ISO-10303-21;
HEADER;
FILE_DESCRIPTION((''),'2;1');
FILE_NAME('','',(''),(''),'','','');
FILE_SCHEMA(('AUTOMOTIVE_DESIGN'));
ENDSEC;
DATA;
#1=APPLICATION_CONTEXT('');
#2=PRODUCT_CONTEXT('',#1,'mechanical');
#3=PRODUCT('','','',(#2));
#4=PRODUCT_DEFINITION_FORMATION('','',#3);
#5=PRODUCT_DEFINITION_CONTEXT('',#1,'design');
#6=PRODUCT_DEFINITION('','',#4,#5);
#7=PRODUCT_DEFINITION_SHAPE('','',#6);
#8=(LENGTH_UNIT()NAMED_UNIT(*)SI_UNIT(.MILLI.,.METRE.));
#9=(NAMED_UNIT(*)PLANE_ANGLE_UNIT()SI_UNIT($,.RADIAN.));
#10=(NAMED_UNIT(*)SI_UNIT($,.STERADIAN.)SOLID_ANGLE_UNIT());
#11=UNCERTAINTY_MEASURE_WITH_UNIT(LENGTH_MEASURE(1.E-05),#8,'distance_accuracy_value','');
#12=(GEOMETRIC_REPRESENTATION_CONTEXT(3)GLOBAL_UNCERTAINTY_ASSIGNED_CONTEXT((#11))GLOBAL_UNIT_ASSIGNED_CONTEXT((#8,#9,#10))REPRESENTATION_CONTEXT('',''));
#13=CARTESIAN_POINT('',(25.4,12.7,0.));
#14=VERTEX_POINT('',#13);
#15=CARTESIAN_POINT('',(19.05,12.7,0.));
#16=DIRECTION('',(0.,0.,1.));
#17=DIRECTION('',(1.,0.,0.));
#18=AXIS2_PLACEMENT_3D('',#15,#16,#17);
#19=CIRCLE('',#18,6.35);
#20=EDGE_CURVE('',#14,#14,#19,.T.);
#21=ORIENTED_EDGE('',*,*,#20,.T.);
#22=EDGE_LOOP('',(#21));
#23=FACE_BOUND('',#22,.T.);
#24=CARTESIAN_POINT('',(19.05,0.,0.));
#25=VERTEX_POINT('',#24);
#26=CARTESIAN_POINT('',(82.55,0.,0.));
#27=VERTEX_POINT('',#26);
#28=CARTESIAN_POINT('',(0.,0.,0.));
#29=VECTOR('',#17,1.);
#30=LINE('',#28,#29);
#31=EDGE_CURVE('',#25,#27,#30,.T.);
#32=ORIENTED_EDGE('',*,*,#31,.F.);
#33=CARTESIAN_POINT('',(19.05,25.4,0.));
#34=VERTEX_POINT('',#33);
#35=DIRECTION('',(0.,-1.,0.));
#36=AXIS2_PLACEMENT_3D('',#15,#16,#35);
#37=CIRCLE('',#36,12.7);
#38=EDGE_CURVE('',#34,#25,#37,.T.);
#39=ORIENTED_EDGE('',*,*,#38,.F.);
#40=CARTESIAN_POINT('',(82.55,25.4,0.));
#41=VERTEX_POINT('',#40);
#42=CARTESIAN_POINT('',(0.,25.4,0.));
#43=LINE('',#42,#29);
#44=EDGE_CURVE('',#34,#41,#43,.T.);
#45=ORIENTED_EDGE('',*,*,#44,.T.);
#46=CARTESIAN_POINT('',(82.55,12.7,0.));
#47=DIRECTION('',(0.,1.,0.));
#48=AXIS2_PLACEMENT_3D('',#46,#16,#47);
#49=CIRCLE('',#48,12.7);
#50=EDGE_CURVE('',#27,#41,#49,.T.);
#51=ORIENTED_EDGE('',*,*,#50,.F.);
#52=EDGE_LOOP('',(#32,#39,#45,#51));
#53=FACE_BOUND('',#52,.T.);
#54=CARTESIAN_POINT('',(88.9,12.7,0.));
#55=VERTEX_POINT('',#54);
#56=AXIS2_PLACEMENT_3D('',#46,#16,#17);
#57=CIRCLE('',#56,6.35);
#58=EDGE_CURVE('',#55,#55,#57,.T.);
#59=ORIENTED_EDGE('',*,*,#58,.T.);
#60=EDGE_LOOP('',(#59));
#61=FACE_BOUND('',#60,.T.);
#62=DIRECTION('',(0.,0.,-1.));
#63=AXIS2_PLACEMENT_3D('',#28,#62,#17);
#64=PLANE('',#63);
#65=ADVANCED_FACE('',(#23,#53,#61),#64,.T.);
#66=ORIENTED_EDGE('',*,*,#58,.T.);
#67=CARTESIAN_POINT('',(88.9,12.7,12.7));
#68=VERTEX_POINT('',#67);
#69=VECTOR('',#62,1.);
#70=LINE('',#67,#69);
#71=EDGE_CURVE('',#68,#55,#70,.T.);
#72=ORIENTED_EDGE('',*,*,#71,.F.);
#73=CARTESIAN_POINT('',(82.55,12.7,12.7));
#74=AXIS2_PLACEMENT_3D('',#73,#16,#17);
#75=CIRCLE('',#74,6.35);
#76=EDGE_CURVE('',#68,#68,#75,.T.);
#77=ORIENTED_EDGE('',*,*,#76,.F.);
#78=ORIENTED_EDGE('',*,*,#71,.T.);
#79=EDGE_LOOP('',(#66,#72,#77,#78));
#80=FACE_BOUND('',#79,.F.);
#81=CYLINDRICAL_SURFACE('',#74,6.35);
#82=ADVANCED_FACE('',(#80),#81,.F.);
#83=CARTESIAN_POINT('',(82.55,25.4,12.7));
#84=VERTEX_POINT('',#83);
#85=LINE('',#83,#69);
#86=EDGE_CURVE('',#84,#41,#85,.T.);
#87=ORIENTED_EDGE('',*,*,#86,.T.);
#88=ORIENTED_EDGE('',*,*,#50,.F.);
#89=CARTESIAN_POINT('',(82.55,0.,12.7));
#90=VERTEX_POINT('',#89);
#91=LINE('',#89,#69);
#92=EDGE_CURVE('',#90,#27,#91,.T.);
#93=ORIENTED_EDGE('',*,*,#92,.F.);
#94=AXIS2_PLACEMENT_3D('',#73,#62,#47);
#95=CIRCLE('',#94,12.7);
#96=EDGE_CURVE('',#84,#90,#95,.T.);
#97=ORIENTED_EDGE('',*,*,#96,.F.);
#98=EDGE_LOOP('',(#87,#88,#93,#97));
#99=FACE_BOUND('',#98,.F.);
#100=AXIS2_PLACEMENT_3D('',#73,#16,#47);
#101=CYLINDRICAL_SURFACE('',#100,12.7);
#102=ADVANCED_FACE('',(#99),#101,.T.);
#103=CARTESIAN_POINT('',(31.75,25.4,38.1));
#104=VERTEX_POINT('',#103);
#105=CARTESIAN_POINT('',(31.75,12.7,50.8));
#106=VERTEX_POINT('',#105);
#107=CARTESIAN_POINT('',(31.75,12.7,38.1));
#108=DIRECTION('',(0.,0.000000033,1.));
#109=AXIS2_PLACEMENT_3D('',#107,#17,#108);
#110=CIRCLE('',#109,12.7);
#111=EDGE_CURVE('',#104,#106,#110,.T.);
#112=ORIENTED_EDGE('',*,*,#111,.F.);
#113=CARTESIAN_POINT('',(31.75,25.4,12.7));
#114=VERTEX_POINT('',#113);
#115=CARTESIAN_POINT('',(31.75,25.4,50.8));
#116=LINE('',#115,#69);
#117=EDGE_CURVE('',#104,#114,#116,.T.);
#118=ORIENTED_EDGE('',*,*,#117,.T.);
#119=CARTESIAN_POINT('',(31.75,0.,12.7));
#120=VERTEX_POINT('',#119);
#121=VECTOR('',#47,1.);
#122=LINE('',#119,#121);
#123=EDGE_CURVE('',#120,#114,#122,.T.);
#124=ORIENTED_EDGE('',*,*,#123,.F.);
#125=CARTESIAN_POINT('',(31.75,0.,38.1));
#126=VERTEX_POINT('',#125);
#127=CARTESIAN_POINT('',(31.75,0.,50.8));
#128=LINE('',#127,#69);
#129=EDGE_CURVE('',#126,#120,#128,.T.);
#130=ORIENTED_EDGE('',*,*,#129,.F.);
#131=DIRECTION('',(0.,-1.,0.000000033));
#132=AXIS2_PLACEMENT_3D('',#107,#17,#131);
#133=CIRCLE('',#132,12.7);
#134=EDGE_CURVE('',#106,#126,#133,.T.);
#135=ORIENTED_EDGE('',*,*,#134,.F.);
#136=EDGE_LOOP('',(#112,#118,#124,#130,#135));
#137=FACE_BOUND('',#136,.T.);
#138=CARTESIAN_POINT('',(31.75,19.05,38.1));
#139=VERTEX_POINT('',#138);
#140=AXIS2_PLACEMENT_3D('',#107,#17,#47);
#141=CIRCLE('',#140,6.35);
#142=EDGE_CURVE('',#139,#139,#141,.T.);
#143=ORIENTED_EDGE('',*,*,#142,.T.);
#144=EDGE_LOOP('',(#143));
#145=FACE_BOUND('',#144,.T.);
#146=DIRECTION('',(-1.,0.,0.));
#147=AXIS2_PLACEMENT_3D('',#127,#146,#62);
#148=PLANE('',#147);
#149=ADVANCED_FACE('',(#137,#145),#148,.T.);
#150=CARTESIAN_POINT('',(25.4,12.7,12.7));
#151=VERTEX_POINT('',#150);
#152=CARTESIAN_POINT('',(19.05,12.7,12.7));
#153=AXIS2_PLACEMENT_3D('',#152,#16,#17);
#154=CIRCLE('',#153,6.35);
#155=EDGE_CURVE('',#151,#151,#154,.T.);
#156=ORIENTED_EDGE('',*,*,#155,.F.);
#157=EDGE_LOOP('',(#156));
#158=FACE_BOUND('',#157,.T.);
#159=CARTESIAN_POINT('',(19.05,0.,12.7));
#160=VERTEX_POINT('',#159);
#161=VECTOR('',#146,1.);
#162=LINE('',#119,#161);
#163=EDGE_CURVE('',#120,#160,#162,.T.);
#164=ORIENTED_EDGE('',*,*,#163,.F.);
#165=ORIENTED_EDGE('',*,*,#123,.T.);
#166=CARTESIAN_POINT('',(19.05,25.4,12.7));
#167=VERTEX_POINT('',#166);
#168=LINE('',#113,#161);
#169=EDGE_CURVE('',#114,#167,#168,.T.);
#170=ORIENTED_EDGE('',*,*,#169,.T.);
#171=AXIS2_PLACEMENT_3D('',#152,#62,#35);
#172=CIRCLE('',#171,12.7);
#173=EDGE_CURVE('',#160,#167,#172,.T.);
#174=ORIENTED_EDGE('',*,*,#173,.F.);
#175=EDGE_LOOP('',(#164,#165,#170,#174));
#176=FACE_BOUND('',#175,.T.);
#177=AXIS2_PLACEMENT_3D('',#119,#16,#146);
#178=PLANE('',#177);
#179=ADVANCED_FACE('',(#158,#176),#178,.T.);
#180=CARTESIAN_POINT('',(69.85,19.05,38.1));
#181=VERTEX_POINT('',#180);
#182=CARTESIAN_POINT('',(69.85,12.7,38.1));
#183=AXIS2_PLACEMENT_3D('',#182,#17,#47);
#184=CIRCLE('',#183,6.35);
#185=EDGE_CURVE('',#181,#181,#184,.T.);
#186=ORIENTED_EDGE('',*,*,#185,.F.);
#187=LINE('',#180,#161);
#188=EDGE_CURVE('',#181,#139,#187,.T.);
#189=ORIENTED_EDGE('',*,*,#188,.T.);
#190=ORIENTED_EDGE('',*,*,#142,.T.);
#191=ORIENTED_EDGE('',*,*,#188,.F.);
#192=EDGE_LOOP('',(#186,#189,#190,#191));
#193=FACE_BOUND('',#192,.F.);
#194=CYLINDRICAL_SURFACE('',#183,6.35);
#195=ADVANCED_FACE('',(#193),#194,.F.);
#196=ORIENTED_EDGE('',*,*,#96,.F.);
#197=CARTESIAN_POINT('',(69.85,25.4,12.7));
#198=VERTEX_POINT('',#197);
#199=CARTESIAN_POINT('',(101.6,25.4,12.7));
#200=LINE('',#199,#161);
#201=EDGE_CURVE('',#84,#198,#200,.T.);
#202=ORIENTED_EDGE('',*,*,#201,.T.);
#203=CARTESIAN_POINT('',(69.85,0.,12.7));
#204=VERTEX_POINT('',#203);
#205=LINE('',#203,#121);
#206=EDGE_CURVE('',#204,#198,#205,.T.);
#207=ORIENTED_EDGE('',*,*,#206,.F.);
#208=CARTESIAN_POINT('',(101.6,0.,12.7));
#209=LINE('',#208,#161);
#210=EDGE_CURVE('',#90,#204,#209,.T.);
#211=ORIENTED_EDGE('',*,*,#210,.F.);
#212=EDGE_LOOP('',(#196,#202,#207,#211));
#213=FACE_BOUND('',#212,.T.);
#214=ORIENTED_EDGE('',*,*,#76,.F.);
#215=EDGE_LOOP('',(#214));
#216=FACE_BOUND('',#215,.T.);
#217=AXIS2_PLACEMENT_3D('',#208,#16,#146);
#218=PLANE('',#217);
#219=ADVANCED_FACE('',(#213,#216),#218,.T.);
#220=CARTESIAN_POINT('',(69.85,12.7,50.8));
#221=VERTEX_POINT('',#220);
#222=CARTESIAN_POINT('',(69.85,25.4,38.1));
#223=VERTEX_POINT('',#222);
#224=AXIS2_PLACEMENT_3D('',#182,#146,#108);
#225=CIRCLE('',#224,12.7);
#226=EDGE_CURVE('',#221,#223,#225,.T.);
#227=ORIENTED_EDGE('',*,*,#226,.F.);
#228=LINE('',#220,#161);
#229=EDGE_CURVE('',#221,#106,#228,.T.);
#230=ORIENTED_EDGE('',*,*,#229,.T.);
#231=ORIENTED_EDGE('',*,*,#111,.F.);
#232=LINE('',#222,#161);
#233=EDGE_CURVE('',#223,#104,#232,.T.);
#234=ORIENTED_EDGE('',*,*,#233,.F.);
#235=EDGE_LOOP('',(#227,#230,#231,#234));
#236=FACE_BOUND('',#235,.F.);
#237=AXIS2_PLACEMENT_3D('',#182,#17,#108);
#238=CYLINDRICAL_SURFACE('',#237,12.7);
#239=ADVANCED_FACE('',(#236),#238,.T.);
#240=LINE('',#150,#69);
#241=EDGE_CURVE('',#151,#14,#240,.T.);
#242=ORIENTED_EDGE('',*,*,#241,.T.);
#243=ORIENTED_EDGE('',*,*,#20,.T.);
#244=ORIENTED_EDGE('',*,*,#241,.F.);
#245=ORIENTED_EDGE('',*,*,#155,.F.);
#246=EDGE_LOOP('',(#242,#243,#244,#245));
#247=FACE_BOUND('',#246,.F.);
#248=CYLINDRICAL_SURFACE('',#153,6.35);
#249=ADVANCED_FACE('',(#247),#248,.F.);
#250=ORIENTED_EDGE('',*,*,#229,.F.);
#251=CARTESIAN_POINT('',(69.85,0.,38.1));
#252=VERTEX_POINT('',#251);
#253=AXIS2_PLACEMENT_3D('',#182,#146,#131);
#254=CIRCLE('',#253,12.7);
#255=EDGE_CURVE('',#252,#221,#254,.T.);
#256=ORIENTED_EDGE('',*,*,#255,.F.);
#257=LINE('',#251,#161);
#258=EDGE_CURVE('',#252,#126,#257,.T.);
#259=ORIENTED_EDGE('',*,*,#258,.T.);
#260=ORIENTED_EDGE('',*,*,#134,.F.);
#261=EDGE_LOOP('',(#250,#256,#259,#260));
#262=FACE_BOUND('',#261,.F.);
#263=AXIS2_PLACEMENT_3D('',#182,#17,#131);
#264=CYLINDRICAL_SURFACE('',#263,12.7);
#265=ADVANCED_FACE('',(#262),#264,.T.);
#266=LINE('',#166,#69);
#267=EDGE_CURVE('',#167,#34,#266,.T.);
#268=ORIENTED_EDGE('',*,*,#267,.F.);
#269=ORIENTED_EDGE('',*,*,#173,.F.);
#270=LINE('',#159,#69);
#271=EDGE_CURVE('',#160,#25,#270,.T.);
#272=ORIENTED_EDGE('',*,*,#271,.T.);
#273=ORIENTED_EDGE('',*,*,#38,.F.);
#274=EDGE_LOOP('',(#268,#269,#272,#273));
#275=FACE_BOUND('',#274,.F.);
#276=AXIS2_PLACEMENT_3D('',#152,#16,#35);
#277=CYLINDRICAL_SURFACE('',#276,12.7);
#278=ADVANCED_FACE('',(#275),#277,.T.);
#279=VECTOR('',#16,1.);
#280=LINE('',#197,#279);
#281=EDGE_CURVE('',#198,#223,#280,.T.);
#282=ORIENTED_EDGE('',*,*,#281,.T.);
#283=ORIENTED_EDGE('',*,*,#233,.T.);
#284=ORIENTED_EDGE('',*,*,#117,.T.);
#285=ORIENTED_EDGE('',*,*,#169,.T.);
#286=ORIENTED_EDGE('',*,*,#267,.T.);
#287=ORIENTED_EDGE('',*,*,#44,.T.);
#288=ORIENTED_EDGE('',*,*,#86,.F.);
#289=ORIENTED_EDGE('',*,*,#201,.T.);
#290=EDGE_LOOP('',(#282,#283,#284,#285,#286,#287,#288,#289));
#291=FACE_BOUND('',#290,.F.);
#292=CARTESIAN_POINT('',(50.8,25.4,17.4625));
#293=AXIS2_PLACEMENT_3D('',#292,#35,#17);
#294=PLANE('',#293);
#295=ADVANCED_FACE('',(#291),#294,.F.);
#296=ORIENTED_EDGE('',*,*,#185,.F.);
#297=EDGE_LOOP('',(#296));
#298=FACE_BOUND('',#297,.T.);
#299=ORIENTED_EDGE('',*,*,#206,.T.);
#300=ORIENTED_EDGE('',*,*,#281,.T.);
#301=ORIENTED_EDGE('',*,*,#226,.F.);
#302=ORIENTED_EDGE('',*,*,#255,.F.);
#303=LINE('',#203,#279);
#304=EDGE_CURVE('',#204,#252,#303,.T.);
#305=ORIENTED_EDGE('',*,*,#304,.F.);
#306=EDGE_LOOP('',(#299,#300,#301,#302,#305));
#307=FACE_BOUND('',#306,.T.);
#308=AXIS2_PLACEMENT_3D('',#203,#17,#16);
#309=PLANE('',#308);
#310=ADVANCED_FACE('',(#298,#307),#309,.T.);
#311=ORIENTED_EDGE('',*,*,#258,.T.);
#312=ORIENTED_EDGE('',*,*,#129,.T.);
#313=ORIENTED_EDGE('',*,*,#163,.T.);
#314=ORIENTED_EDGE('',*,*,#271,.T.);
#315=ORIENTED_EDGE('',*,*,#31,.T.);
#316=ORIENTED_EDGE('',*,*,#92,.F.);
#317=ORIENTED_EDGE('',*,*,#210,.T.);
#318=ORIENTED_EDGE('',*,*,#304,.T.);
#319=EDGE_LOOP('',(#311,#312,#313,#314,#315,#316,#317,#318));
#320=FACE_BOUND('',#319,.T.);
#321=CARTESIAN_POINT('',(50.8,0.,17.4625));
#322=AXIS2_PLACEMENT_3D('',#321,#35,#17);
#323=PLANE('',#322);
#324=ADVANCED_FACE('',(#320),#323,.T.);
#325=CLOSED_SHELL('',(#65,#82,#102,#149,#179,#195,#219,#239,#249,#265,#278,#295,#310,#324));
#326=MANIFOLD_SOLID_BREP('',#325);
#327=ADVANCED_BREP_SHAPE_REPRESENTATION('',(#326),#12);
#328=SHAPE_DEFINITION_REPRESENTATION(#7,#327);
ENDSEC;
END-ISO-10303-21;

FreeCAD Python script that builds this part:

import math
import FreeCAD as App
import Part
import Sketcher

V = App.Vector
Q = App.Units.Quantity


def add_polygon(sketch, points):
    """Adds a closed chain of lines whose ends are joined by coincident constraints."""
    first, n = sketch.GeometryCount, len(points)
    for a, b in zip(points, points[1:] + points[:1]):
        sketch.addGeometry(Part.LineSegment(App.Vector(*a, 0), App.Vector(*b, 0)), False)
    for i in range(n):
        sketch.addConstraint(Sketcher.Constraint("Coincident", first + i, 2, first + (i + 1) % n, 1))

doc = App.newDocument("Part")
body = doc.addObject("PartDesign::Body", "Body")

# Sketch on XZ plane
sketch1 = body.newObject("Sketcher::SketchObject", "Sketch")
sketch1.AttachmentSupport = (doc.getObject("XZ_Plane"), [""])
sketch1.MapMode = "FlatFace"
add_polygon(sketch1, [(0, 13), (0, 0), (102, 0), (102, 13), (70, 13), (70, 51), (32, 51), (32, 13)])  # lines 0-7
sketch1.addConstraint(Sketcher.Constraint("Vertical", 0))
sketch1.addConstraint(Sketcher.Constraint("Horizontal", 1))
sketch1.addConstraint(Sketcher.Constraint("Vertical", 2))
sketch1.addConstraint(Sketcher.Constraint("Horizontal", 3))
sketch1.addConstraint(Sketcher.Constraint("Vertical", 4))
sketch1.addConstraint(Sketcher.Constraint("Horizontal", 5))
sketch1.addConstraint(Sketcher.Constraint("Vertical", 6))
sketch1.addConstraint(Sketcher.Constraint("Horizontal", 7))
sketch1.addConstraint(Sketcher.Constraint("Coincident", 0, 2, -1, 1))
sketch1.addConstraint(Sketcher.Constraint("Horizontal", 3, 2, 6, 2))
sketch1.addConstraint(Sketcher.Constraint("Equal", 3, 7))
sketch1.addConstraint(Sketcher.Constraint("Equal", 5, 4))
sketch1.addConstraint(Sketcher.Constraint("DistanceX", 1, 1, 1, 2, Q("4 in")))
sketch1.addConstraint(Sketcher.Constraint("DistanceX", 5, 2, 5, 1, Q("1.5 in")))
sketch1.addConstraint(Sketcher.Constraint("DistanceY", 0, 2, 0, 1, Q("0.5 in")))
pad1 = body.newObject("PartDesign::Pad", "Pad")
pad1.Profile = sketch1
pad1.Length = Q("1 in")
pad1.Reversed = True

# Sketch on XY plane
sketch2 = body.newObject("Sketcher::SketchObject", "Sketch001")
sketch2.AttachmentSupport = (doc.getObject("XY_Plane"), [""])
sketch2.MapMode = "FlatFace"
sketch2.AttachmentOffset = App.Placement(V(0, 0, 0.5 * 25.4), App.Rotation())
sketch2.addGeometry(Part.Circle(V(83, 13, 0), V(0, 0, 1), 6), False)
sketch2.addGeometry(Part.ArcOfCircle(Part.Circle(V(83, 13, 0), V(0, 0, 1), 13), math.radians(-90), math.radians(90)), False)
sketch2.addGeometry(Part.LineSegment(V(83, 0, 0), V(102, 0, 0)), False)
sketch2.addGeometry(Part.LineSegment(V(102, 0, 0), V(102, 25, 0)), False)
sketch2.addGeometry(Part.LineSegment(V(102, 25, 0), V(83, 25, 0)), False)
sketch2.addConstraint(Sketcher.Constraint("Tangent", 1, 1, 2, 1))
sketch2.addConstraint(Sketcher.Constraint("Coincident", 2, 2, 3, 1))
sketch2.addConstraint(Sketcher.Constraint("Coincident", 3, 2, 4, 1))
sketch2.addConstraint(Sketcher.Constraint("Tangent", 4, 2, 1, 2))
sketch2.addConstraint(Sketcher.Constraint("Horizontal", 2))
sketch2.addConstraint(Sketcher.Constraint("Vertical", 3))
sketch2.addConstraint(Sketcher.Constraint("Horizontal", 4))
sketch2.addConstraint(Sketcher.Constraint("Coincident", 1, 3, 0, 3))
sketch2.addConstraint(Sketcher.Constraint("PointOnObject", 1, 1, -1))
sketch2.addConstraint(Sketcher.Constraint("Diameter", 0, Q("0.5 in")))
sketch2.addConstraint(Sketcher.Constraint("Radius", 1, Q("0.5 in")))
sketch2.addConstraint(Sketcher.Constraint("DistanceX", -1, 1, 2, 2, Q("4 in")))
sketch2.addConstraint(Sketcher.Constraint("DistanceX", 2, 1, 2, 2, Q("0.75 in")))
pocket1 = body.newObject("PartDesign::Pocket", "Pocket")
pocket1.Profile = sketch2
pocket1.Length = Q("1 in")

# Sketch on YZ plane
sketch3 = body.newObject("Sketcher::SketchObject", "Sketch002")
sketch3.AttachmentSupport = (doc.getObject("YZ_Plane"), [""])
sketch3.MapMode = "FlatFace"
sketch3.AttachmentOffset = App.Placement(V(0, 0, 2.75 * 25.4), App.Rotation())
sketch3.addGeometry(Part.Circle(V(13, 38, 0), V(0, 0, 1), 6), False)
sketch3.addGeometry(Part.ArcOfCircle(Part.Circle(V(13, 38, 0), V(0, 0, 1), 13), math.radians(0), math.radians(90)), False)
sketch3.addGeometry(Part.LineSegment(V(25, 38, 0), V(25, 51, 0)), False)
sketch3.addGeometry(Part.LineSegment(V(25, 51, 0), V(13, 51, 0)), False)
sketch3.addGeometry(Part.ArcOfCircle(Part.Circle(V(13, 38, 0), V(0, 0, 1), 13), math.radians(90), math.radians(180)), False)
sketch3.addGeometry(Part.LineSegment(V(13, 51, 0), V(0, 51, 0)), False)
sketch3.addGeometry(Part.LineSegment(V(0, 51, 0), V(0, 38, 0)), False)
sketch3.addConstraint(Sketcher.Constraint("Tangent", 1, 1, 2, 1))
sketch3.addConstraint(Sketcher.Constraint("Coincident", 2, 2, 3, 1))
sketch3.addConstraint(Sketcher.Constraint("Tangent", 3, 2, 1, 2))
sketch3.addConstraint(Sketcher.Constraint("Tangent", 4, 1, 5, 1))
sketch3.addConstraint(Sketcher.Constraint("Coincident", 5, 2, 6, 1))
sketch3.addConstraint(Sketcher.Constraint("Tangent", 6, 2, 4, 2))
sketch3.addConstraint(Sketcher.Constraint("Vertical", 2))
sketch3.addConstraint(Sketcher.Constraint("Horizontal", 3))
sketch3.addConstraint(Sketcher.Constraint("Horizontal", 5))
sketch3.addConstraint(Sketcher.Constraint("Vertical", 6))
sketch3.addConstraint(Sketcher.Constraint("Coincident", 1, 3, 0, 3))
sketch3.addConstraint(Sketcher.Constraint("Coincident", 4, 3, 0, 3))
sketch3.addConstraint(Sketcher.Constraint("Equal", 1, 4))
sketch3.addConstraint(Sketcher.Constraint("PointOnObject", 5, 2, -2))
sketch3.addConstraint(Sketcher.Constraint("Diameter", 0, Q("0.5 in")))
sketch3.addConstraint(Sketcher.Constraint("Radius", 1, Q("0.5 in")))
sketch3.addConstraint(Sketcher.Constraint("DistanceY", -1, 1, 2, 2, Q("2 in")))
pocket2 = body.newObject("PartDesign::Pocket", "Pocket001")
pocket2.Profile = sketch3
pocket2.Length = Q("1.94 in")

# Sketch on XY plane
sketch4 = body.newObject("Sketcher::SketchObject", "Sketch003")
sketch4.AttachmentSupport = (doc.getObject("XY_Plane"), [""])
sketch4.MapMode = "FlatFace"
sketch4.AttachmentOffset = App.Placement(V(0, 0, 0.5 * 25.4), App.Rotation())
sketch4.addGeometry(Part.ArcOfCircle(Part.Circle(V(19, 13, 0), V(0, 0, 1), 13), math.radians(90), math.radians(270)), False)
sketch4.addGeometry(Part.LineSegment(V(19, 25, 0), V(0, 25, 0)), False)
sketch4.addGeometry(Part.LineSegment(V(0, 25, 0), V(0, 0, 0)), False)
sketch4.addGeometry(Part.LineSegment(V(0, 0, 0), V(19, 0, 0)), False)
sketch4.addGeometry(Part.Circle(V(19, 13, 0), V(0, 0, 1), 6), False)
sketch4.addConstraint(Sketcher.Constraint("Tangent", 0, 1, 1, 1))
sketch4.addConstraint(Sketcher.Constraint("Coincident", 1, 2, 2, 1))
sketch4.addConstraint(Sketcher.Constraint("Coincident", 2, 2, 3, 1))
sketch4.addConstraint(Sketcher.Constraint("Tangent", 3, 2, 0, 2))
sketch4.addConstraint(Sketcher.Constraint("Horizontal", 1))
sketch4.addConstraint(Sketcher.Constraint("Vertical", 2))
sketch4.addConstraint(Sketcher.Constraint("Horizontal", 3))
sketch4.addConstraint(Sketcher.Constraint("Coincident", 2, 2, -1, 1))
sketch4.addConstraint(Sketcher.Constraint("Coincident", 4, 3, 0, 3))
sketch4.addConstraint(Sketcher.Constraint("Diameter", 4, Q("0.5 in")))
sketch4.addConstraint(Sketcher.Constraint("Radius", 0, Q("0.5 in")))
sketch4.addConstraint(Sketcher.Constraint("DistanceX", 1, 2, 1, 1, Q("0.75 in")))
pocket3 = body.newObject("PartDesign::Pocket", "Pocket002")
pocket3.Profile = sketch4
pocket3.Length = Q("1 in")

doc.recompute()
